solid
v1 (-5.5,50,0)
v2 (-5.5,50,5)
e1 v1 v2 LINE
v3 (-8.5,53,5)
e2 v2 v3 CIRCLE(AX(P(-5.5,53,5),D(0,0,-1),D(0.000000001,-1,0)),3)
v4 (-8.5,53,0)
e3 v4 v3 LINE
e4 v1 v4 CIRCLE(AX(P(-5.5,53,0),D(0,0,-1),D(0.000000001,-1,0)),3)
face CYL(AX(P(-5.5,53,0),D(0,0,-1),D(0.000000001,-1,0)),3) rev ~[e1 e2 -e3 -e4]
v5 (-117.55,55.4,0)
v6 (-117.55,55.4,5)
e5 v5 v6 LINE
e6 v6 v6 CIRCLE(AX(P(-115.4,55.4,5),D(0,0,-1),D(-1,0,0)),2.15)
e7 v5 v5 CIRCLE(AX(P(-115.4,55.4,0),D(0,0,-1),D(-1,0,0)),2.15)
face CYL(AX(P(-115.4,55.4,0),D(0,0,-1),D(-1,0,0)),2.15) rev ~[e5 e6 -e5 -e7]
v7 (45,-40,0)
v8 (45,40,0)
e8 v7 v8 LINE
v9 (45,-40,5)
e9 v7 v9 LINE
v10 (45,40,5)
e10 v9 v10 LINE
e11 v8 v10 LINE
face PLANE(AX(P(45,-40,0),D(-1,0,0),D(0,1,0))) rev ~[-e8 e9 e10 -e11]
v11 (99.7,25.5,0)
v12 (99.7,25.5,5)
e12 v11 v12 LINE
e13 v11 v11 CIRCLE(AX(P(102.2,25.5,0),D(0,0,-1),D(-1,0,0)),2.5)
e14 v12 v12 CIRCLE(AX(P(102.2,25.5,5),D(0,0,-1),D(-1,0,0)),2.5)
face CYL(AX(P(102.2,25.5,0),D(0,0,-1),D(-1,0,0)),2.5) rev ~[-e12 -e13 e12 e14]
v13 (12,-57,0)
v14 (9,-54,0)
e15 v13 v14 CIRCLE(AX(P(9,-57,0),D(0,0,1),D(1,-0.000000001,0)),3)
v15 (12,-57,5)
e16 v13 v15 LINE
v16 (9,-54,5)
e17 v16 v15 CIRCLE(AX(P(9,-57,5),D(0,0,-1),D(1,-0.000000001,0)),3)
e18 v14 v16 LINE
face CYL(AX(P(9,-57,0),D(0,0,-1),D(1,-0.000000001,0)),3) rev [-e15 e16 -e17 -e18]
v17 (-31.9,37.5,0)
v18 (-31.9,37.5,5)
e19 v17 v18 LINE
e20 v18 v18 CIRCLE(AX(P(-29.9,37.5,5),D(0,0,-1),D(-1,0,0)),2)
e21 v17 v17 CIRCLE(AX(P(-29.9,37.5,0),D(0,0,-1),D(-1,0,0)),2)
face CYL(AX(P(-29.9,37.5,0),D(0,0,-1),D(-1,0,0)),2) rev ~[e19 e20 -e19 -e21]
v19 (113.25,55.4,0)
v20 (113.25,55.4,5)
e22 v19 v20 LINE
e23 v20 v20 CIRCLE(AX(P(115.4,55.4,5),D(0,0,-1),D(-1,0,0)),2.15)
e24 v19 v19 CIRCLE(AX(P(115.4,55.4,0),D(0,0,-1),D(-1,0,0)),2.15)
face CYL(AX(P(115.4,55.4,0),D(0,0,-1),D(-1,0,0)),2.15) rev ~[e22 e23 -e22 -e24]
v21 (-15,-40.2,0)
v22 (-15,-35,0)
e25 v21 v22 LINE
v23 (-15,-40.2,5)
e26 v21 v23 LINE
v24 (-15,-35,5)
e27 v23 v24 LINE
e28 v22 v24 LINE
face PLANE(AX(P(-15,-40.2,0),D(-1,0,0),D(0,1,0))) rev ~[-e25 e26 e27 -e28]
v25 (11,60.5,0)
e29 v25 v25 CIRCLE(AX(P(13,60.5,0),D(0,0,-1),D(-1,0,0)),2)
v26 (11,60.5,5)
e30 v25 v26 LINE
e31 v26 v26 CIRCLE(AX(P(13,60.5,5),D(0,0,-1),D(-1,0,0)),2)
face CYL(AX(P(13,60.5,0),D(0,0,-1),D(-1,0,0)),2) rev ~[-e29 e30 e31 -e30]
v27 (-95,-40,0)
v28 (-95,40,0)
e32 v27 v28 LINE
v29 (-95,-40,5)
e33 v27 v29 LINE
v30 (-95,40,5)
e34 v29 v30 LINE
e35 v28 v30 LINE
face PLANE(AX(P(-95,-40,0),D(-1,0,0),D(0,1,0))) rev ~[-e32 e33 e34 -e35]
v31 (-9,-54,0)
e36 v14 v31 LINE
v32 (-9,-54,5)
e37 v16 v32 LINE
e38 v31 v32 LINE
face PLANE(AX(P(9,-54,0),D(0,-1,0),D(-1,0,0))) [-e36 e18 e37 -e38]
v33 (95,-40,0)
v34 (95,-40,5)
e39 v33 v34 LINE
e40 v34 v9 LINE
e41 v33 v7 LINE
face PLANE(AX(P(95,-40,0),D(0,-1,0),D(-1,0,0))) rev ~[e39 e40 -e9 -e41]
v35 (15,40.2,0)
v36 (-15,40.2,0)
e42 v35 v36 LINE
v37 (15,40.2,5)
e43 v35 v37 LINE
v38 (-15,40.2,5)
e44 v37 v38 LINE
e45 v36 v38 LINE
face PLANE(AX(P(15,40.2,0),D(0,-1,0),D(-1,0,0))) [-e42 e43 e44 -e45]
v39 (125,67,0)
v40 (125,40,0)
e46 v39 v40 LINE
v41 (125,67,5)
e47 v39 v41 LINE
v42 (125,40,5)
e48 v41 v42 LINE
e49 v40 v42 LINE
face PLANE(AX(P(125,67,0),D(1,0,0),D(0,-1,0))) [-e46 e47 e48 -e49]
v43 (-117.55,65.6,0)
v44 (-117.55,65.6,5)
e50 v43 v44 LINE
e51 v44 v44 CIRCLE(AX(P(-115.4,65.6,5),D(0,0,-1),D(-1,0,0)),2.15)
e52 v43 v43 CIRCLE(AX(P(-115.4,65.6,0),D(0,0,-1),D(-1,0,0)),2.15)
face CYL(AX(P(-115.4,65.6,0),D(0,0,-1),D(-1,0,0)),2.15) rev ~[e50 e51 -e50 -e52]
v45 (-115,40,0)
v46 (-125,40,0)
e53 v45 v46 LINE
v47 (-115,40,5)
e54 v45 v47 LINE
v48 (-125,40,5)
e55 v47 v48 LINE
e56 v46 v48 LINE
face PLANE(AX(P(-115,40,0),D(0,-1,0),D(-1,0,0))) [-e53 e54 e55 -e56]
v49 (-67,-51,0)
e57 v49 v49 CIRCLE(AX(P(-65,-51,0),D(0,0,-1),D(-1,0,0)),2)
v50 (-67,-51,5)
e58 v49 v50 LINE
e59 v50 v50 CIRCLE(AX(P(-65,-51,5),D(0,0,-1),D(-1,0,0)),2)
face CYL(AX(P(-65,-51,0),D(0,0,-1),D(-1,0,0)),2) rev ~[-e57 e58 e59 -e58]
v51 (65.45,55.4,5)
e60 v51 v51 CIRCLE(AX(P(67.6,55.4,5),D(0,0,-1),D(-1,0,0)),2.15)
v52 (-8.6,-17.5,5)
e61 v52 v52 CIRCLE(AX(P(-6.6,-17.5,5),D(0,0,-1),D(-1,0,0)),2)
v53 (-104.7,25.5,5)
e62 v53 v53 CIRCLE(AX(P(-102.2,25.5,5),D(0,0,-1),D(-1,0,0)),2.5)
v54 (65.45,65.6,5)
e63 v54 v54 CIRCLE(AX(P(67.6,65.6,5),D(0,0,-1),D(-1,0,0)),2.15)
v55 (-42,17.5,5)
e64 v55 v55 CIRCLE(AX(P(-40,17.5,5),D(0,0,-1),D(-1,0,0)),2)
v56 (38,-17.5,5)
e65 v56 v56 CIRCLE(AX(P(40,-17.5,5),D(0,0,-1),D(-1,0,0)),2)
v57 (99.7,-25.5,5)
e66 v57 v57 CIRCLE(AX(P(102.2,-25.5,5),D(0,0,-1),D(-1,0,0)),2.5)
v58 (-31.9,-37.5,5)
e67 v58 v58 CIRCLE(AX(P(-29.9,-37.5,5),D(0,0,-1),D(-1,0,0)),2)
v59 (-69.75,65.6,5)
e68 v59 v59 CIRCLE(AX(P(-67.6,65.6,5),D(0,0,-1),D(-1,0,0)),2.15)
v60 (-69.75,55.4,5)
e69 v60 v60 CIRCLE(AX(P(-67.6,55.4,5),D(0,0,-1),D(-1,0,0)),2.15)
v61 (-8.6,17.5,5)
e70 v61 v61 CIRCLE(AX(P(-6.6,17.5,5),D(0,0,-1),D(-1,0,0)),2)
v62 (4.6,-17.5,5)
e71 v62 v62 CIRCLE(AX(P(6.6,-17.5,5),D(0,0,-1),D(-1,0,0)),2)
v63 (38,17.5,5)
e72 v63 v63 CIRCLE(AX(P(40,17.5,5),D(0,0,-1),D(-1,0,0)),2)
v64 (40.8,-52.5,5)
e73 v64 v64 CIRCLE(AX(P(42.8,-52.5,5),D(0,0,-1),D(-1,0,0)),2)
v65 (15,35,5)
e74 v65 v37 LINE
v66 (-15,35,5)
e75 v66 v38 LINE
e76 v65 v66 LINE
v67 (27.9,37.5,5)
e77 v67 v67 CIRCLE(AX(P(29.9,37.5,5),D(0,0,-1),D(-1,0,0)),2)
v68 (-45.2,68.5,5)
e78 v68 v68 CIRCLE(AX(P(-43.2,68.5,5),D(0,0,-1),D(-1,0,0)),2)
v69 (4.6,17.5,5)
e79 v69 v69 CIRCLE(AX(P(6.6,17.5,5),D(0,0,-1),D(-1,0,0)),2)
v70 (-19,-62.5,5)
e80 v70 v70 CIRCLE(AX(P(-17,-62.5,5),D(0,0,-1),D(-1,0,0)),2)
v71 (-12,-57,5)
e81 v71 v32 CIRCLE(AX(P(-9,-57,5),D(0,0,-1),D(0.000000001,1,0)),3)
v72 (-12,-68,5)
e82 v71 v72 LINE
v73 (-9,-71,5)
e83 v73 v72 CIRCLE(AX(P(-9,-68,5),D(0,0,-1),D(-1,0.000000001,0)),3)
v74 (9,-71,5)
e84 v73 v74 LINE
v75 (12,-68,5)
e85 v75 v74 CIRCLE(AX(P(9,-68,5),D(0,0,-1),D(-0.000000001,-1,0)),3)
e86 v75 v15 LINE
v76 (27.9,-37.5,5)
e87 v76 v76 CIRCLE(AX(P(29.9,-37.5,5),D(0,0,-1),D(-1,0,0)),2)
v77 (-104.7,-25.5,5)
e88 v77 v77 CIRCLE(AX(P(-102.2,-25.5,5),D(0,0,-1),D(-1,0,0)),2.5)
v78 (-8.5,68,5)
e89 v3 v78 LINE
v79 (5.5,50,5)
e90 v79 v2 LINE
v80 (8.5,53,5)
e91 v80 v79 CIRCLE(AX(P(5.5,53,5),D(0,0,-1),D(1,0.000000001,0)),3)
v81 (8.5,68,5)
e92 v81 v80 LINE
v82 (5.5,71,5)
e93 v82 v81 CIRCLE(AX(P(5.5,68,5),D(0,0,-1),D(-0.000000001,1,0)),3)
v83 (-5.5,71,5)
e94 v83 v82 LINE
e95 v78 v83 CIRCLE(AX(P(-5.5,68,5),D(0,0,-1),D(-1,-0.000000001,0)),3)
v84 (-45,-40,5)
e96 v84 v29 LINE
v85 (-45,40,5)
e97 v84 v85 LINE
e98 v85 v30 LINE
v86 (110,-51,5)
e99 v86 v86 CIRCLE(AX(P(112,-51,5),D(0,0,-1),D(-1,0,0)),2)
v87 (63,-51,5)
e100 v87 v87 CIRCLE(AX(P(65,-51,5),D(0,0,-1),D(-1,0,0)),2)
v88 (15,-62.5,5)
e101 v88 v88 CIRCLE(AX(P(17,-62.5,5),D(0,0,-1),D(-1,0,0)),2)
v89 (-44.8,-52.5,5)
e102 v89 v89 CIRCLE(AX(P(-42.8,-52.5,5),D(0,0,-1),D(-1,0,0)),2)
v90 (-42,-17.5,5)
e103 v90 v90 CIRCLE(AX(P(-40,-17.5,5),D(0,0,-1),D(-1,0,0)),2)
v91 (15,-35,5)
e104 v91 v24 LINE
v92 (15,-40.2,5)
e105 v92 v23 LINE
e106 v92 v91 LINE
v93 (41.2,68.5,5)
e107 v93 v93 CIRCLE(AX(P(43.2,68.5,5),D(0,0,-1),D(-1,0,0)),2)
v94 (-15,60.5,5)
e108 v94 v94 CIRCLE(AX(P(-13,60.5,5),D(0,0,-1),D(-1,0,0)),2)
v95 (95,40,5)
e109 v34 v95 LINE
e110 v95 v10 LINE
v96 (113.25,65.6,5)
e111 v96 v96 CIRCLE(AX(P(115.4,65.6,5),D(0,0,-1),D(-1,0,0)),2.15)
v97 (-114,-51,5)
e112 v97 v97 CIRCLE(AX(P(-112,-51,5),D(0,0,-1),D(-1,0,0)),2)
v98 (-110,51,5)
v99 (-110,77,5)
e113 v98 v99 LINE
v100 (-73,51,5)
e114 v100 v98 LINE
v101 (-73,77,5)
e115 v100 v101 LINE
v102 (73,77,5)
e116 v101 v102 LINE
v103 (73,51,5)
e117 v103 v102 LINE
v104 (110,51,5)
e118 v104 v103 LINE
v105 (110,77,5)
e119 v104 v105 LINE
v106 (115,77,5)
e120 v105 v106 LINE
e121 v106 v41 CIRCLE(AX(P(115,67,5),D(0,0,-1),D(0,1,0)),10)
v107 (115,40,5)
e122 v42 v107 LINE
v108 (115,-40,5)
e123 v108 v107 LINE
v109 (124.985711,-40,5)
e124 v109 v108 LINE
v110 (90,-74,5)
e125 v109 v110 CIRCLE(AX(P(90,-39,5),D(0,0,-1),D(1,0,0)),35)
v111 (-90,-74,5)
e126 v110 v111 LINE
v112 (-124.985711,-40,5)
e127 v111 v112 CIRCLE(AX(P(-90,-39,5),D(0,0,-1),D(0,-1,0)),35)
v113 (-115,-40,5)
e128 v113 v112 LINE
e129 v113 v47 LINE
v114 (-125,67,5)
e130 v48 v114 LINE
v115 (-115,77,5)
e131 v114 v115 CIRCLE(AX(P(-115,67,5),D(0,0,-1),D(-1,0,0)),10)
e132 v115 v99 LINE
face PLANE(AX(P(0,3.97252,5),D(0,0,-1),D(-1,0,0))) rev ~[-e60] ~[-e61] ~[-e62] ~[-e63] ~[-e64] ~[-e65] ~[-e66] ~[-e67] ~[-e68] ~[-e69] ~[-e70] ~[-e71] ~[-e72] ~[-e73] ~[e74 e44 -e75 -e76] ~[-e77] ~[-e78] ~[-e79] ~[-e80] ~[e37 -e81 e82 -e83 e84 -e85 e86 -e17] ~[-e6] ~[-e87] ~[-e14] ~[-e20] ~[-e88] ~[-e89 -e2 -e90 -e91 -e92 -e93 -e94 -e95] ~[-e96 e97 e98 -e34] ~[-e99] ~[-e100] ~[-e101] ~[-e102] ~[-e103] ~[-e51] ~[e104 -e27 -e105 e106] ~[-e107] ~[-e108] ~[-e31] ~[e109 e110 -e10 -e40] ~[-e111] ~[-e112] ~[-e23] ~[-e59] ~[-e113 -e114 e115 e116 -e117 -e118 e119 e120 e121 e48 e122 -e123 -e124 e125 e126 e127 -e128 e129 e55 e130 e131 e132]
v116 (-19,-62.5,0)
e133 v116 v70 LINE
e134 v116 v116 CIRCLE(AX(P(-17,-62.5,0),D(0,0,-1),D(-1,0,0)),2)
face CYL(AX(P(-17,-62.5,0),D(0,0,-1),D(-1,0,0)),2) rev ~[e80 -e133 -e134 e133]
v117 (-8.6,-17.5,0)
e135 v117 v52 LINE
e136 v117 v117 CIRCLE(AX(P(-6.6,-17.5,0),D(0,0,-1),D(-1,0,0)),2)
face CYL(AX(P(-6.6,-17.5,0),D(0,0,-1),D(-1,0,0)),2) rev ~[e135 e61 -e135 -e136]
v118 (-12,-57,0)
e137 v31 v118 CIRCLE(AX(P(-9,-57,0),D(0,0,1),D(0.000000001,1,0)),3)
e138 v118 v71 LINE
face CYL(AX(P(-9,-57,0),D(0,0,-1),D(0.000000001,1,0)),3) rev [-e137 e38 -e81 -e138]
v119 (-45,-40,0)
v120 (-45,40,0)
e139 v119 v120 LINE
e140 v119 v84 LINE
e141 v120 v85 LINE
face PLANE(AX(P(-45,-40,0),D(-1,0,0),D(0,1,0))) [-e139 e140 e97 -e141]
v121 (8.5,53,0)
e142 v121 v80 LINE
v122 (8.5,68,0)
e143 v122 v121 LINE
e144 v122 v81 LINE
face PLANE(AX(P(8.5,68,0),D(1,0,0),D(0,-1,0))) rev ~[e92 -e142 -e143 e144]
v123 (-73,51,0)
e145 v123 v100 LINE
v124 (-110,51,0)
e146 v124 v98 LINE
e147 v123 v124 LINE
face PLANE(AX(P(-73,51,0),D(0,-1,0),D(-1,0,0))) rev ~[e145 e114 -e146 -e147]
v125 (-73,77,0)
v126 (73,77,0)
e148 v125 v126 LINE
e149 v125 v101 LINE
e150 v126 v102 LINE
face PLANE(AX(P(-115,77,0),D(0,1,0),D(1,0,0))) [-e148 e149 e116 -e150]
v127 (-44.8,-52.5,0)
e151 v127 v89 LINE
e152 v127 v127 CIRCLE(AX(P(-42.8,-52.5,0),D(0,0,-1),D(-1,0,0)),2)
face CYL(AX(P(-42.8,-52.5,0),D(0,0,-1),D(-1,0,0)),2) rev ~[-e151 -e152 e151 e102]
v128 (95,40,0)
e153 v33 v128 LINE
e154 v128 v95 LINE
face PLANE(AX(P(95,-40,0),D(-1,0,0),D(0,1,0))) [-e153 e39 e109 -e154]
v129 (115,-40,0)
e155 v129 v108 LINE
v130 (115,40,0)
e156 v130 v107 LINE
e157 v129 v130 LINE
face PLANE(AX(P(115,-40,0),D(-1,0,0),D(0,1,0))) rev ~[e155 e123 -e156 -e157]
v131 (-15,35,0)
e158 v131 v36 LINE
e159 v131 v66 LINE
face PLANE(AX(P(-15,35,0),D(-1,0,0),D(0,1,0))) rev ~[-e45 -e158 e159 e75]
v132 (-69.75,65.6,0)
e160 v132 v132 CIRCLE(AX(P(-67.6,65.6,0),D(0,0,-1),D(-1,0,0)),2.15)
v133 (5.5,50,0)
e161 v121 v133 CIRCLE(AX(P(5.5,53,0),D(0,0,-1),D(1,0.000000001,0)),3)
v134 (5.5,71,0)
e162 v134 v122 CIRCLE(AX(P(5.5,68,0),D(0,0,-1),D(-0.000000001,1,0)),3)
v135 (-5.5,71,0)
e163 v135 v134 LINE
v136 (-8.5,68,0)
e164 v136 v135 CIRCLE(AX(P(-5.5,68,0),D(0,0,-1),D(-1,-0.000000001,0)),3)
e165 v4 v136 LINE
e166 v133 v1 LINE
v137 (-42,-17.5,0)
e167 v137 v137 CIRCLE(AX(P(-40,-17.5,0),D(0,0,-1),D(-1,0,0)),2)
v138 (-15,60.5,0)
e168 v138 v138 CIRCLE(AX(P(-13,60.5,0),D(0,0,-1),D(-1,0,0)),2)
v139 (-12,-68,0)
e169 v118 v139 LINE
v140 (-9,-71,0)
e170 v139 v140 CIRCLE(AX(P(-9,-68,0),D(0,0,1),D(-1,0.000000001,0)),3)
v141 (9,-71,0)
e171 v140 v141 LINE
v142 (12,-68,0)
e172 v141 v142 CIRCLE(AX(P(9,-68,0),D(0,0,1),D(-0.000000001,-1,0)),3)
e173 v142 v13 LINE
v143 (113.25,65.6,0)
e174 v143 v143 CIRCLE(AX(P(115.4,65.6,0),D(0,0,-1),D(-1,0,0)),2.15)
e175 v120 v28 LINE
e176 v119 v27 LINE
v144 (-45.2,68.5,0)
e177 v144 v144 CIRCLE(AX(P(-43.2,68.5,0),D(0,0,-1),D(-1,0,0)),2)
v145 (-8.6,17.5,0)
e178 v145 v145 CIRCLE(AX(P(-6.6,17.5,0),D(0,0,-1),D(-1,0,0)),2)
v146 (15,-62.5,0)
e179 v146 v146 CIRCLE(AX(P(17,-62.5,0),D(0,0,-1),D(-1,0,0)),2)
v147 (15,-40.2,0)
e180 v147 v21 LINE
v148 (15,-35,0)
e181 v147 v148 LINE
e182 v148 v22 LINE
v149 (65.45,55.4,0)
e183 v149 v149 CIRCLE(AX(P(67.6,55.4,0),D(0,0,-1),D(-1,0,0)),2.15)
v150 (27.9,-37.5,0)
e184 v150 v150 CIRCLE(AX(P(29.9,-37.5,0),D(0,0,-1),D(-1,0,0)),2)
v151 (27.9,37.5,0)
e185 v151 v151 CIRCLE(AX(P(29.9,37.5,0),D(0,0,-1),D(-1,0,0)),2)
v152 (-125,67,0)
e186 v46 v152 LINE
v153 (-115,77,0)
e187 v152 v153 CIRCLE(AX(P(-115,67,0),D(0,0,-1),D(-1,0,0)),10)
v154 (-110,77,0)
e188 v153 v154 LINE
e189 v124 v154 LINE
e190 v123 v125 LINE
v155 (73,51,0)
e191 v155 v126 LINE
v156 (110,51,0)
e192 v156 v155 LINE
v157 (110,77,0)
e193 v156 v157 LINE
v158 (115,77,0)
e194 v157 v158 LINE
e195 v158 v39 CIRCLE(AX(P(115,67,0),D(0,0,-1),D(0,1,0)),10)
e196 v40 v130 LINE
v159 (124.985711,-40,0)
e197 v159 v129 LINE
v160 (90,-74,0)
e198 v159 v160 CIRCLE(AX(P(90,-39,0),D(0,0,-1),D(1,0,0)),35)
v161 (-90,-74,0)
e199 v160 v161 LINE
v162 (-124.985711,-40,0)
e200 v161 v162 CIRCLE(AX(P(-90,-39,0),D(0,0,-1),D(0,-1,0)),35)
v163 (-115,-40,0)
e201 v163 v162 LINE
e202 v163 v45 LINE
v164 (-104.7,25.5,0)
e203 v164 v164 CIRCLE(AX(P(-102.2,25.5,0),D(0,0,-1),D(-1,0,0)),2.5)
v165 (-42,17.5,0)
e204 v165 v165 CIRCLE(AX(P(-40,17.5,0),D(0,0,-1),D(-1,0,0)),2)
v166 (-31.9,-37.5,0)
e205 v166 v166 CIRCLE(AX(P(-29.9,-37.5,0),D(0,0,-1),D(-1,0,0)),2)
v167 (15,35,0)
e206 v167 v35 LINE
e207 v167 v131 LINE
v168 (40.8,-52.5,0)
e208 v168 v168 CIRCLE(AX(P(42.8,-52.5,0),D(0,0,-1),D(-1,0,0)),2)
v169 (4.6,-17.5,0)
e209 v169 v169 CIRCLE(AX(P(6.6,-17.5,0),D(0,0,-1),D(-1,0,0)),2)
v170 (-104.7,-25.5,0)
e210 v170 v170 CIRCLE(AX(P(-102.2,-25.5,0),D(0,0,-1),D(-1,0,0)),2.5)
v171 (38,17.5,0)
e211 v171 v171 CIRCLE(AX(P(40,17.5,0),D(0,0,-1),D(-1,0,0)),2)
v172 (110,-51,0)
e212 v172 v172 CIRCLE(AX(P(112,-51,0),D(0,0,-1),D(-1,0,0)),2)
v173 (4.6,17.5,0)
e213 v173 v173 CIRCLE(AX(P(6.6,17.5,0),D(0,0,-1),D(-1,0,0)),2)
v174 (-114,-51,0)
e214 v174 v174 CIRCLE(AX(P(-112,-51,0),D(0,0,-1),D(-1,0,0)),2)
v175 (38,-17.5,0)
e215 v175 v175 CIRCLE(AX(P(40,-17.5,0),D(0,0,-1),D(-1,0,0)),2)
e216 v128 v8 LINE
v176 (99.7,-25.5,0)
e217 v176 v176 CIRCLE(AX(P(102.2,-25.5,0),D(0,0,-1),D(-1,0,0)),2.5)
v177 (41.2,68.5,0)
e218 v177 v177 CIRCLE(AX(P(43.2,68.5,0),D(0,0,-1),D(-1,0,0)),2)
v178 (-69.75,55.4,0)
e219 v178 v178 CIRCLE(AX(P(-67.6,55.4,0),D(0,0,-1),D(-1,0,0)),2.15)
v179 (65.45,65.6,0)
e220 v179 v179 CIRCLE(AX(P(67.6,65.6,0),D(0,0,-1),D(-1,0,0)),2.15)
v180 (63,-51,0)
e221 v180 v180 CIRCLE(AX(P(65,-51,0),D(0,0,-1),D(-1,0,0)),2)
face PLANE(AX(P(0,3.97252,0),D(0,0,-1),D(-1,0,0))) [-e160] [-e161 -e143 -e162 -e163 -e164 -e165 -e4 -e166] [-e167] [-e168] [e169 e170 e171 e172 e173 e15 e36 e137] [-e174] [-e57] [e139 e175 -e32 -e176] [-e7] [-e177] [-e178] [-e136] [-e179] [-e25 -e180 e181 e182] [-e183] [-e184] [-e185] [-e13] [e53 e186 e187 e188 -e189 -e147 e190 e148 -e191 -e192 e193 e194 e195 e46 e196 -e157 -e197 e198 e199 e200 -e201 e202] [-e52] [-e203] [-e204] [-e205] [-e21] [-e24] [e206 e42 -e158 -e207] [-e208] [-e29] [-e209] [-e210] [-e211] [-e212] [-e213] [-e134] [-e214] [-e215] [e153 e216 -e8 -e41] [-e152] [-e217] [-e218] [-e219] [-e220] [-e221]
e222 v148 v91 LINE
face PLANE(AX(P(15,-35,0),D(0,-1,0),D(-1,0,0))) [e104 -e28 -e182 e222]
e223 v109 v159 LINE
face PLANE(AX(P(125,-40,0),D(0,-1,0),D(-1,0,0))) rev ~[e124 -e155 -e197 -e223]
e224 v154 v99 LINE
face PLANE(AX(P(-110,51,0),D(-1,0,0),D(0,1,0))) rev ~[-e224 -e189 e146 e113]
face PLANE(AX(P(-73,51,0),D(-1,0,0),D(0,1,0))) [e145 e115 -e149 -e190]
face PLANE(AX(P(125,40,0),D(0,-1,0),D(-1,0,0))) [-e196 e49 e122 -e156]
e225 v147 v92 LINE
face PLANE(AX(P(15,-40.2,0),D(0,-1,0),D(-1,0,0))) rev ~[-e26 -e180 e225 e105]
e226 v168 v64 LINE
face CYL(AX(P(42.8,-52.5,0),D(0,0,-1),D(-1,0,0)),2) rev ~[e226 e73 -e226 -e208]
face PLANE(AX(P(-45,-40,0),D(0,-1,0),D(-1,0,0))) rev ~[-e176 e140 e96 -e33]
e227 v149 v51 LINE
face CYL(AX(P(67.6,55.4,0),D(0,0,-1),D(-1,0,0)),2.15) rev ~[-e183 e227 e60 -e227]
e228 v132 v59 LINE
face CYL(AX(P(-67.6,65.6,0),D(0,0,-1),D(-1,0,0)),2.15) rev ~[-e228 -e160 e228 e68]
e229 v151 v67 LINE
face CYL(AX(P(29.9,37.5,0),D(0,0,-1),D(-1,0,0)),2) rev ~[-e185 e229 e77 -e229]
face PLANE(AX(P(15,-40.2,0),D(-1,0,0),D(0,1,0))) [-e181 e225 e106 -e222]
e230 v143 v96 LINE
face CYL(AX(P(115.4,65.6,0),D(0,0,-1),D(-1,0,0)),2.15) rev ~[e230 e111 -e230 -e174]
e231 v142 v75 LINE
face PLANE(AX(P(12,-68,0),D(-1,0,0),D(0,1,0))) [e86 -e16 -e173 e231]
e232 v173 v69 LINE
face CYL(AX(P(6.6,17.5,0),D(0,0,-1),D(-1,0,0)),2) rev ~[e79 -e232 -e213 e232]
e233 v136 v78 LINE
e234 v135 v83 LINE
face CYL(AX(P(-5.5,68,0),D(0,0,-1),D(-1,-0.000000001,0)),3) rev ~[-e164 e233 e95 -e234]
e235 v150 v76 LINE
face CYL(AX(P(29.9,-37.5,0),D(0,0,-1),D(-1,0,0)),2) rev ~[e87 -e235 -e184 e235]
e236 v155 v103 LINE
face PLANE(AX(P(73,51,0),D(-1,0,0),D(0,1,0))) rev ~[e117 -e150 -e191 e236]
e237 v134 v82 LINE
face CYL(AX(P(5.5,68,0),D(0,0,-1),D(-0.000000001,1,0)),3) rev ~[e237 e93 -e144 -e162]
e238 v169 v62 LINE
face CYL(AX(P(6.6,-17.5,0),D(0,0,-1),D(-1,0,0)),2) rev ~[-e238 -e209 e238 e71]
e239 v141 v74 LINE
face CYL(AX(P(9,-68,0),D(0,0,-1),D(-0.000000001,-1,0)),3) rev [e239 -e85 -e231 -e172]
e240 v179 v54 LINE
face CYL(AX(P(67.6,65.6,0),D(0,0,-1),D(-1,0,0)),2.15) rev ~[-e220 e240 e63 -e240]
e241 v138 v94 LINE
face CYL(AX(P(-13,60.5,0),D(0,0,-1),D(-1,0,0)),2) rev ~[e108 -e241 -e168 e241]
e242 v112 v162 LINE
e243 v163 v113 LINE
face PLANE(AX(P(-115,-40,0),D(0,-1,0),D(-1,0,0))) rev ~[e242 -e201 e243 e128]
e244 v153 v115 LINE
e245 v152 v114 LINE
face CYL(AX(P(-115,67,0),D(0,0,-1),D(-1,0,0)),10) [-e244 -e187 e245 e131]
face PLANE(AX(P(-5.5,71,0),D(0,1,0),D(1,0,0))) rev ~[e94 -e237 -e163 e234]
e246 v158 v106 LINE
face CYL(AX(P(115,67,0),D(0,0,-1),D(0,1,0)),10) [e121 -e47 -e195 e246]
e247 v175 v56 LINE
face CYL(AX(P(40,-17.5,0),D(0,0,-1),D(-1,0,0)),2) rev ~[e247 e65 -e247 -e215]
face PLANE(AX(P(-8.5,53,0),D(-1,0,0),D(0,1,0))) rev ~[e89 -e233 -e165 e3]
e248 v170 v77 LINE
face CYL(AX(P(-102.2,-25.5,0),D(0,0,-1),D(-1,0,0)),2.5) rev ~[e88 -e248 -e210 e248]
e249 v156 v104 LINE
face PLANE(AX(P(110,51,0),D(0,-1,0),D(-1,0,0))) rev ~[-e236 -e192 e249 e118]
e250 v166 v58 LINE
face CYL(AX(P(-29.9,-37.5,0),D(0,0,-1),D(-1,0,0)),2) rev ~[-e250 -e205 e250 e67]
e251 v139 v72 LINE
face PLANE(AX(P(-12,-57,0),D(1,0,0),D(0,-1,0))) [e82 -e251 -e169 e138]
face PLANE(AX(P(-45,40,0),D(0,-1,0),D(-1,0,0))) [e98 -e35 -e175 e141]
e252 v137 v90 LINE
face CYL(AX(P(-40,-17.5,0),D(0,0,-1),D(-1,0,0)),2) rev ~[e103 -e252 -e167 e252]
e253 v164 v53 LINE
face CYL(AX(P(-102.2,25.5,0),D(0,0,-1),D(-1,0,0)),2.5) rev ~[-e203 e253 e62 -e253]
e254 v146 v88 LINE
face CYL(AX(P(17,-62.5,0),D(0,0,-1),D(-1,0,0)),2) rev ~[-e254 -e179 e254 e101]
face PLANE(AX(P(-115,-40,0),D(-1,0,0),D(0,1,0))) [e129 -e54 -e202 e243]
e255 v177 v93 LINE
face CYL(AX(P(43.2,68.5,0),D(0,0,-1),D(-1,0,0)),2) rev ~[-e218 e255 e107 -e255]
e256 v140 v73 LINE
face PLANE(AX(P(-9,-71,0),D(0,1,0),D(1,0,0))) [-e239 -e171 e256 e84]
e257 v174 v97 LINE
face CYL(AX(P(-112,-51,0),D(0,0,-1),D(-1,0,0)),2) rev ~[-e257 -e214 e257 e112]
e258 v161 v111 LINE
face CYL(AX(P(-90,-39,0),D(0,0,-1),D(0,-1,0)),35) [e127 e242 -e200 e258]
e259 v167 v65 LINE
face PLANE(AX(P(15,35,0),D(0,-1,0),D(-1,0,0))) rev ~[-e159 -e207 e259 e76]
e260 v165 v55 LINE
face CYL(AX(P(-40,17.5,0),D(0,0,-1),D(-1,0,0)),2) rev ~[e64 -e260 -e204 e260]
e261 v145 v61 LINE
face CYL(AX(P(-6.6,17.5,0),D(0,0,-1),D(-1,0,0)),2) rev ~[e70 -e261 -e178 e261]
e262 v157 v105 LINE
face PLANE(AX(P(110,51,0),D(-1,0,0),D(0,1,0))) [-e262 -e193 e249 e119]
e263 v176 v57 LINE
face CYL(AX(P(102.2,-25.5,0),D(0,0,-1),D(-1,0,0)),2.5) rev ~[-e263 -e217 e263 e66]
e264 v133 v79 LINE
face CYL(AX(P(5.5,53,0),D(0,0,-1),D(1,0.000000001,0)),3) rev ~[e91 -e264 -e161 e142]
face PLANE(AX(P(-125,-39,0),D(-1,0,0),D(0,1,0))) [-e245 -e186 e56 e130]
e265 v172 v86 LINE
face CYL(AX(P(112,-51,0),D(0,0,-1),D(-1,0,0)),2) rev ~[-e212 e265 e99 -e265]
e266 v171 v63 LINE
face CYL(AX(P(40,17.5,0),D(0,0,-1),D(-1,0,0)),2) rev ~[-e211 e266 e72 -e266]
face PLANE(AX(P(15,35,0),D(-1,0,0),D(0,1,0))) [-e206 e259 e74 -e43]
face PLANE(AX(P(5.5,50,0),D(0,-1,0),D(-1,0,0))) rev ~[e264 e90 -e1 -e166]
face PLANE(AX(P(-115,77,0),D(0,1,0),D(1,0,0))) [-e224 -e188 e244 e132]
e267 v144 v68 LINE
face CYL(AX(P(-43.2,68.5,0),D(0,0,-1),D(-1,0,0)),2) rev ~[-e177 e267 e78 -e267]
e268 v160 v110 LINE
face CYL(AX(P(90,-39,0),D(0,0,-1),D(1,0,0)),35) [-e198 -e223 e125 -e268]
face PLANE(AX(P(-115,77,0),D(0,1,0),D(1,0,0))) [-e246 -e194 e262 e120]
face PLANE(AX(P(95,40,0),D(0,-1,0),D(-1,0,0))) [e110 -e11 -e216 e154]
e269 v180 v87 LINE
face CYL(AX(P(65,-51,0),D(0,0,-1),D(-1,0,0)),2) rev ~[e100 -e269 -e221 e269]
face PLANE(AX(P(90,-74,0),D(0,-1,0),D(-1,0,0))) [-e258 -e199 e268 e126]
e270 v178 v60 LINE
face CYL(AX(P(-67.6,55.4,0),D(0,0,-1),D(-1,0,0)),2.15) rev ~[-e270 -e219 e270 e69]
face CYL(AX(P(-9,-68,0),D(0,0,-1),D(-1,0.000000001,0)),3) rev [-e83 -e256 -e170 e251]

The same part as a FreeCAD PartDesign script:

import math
import FreeCAD as App
import Part
import Sketcher

V = App.Vector


def add_polygon(sketch, points):
    """Adds a closed chain of lines whose ends are joined by coincident constraints."""
    first, n = sketch.GeometryCount, len(points)
    for a, b in zip(points, points[1:] + points[:1]):
        sketch.addGeometry(Part.LineSegment(App.Vector(*a, 0), App.Vector(*b, 0)), False)
    for i in range(n):
        sketch.addConstraint(Sketcher.Constraint("Coincident", first + i, 2, first + (i + 1) % n, 1))

doc = App.newDocument("Part")
body = doc.addObject("PartDesign::Body", "Body")

# Sketch on XY plane
sketch1 = doc.addObject("Sketcher::SketchObject", "Sketch")
body.addObject(sketch1)
sketch1.AttachmentSupport = (doc.XY_Plane, [""])
sketch1.MapMode = "FlatFace"
sketch1.addGeometry(Part.LineSegment(V(115, 77, 0), V(-115, 77, 0)), False)
sketch1.addGeometry(Part.ArcOfCircle(Part.Circle(V(-115, 67, 0), V(0, 0, 1), 10), math.radians(90), math.radians(180)), False)
sketch1.addGeometry(Part.LineSegment(V(-125, 67, 0), V(-125, -39, 0)), False)
sketch1.addGeometry(Part.ArcOfCircle(Part.Circle(V(-90, -39, 0), V(0, 0, 1), 35), math.radians(180), math.radians(270)), False)
sketch1.addGeometry(Part.LineSegment(V(-90, -74, 0), V(90, -74, 0)), False)
sketch1.addGeometry(Part.ArcOfCircle(Part.Circle(V(90, -39, 0), V(0, 0, 1), 35), math.radians(-90), math.radians(0)), False)
sketch1.addGeometry(Part.LineSegment(V(125, -39, 0), V(125, 67, 0)), False)
sketch1.addGeometry(Part.ArcOfCircle(Part.Circle(V(115, 67, 0), V(0, 0, 1), 10), math.radians(0), math.radians(90)), False)
sketch1.addConstraint(Sketcher.Constraint("Tangent", 0, 2, 1, 1))
sketch1.addConstraint(Sketcher.Constraint("Tangent", 1, 2, 2, 1))
sketch1.addConstraint(Sketcher.Constraint("Tangent", 2, 2, 3, 1))
sketch1.addConstraint(Sketcher.Constraint("Tangent", 3, 2, 4, 1))
sketch1.addConstraint(Sketcher.Constraint("Tangent", 4, 2, 5, 1))
sketch1.addConstraint(Sketcher.Constraint("Tangent", 5, 2, 6, 1))
sketch1.addConstraint(Sketcher.Constraint("Tangent", 6, 2, 7, 1))
sketch1.addConstraint(Sketcher.Constraint("Tangent", 7, 2, 0, 1))
sketch1.addConstraint(Sketcher.Constraint("Horizontal", 0))
sketch1.addConstraint(Sketcher.Constraint("Vertical", 2))
sketch1.addConstraint(Sketcher.Constraint("Horizontal", 4))
sketch1.addConstraint(Sketcher.Constraint("Vertical", 6))
sketch1.addConstraint(Sketcher.Constraint("Equal", 3, 5))
sketch1.addConstraint(Sketcher.Constraint("Equal", 1, 7))
sketch1.addConstraint(Sketcher.Constraint("Radius", 1, 10.0))
sketch1.addConstraint(Sketcher.Constraint("Radius", 3, 35.0))
sketch1.addConstraint(Sketcher.Constraint("DistanceX", 0, 2, 0, 1, 230.0))
sketch1.addConstraint(Sketcher.Constraint("DistanceY", 2, 2, 2, 1, 106.0))
sketch1.addConstraint(Sketcher.Constraint("DistanceX", 1, 3, -1, 1, 115.0))
sketch1.addConstraint(Sketcher.Constraint("DistanceY", -1, 1, 1, 3, 67.0))
pad1 = doc.addObject("PartDesign::Pad", "Pad")
body.addObject(pad1)
pad1.Profile = sketch1
pad1.Length = 5

# Sketch on XY plane
sketch2 = doc.addObject("Sketcher::SketchObject", "Sketch001")
body.addObject(sketch2)
sketch2.AttachmentSupport = (doc.XY_Plane, [""])
sketch2.MapMode = "FlatFace"
sketch2.addGeometry(Part.Circle(V(6.6, -17.5, 0), V(0, 0, 1), 2), False)  # 0
sketch2.addGeometry(Part.Circle(V(6.6, 17.5, 0), V(0, 0, 1), 2), False)  # 1
sketch2.addGeometry(Part.Circle(V(40, -17.5, 0), V(0, 0, 1), 2), False)  # 2
sketch2.addGeometry(Part.Circle(V(40, 17.5, 0), V(0, 0, 1), 2), False)  # 3
sketch2.addGeometry(Part.Circle(V(-6.6, 17.5, 0), V(0, 0, 1), 2), False)  # 4
sketch2.addGeometry(Part.Circle(V(-6.6, -17.5, 0), V(0, 0, 1), 2), False)  # 5
sketch2.addGeometry(Part.Circle(V(-40, -17.5, 0), V(0, 0, 1), 2), False)  # 6
sketch2.addGeometry(Part.Circle(V(-40, 17.5, 0), V(0, 0, 1), 2), False)  # 7
add_polygon(sketch2, [(125, 40), (125, -40), (115, -40), (115, 40)])  # lines 8-11
add_polygon(sketch2, [(95, 40), (95, -40), (45, -40), (45, 40)])  # lines 12-15
add_polygon(sketch2, [(-115, 40), (-115, -40), (-125, -40), (-125, 40)])  # lines 16-19
add_polygon(sketch2, [(-45, 40), (-45, -40), (-95, -40), (-95, 40)])  # lines 20-23
sketch2.addConstraint(Sketcher.Constraint("Vertical", 8))
sketch2.addConstraint(Sketcher.Constraint("Horizontal", 9))
sketch2.addConstraint(Sketcher.Constraint("Vertical", 10))
sketch2.addConstraint(Sketcher.Constraint("Horizontal", 11))
sketch2.addConstraint(Sketcher.Constraint("Vertical", 12))
sketch2.addConstraint(Sketcher.Constraint("Horizontal", 13))
sketch2.addConstraint(Sketcher.Constraint("Vertical", 14))
sketch2.addConstraint(Sketcher.Constraint("Horizontal", 15))
sketch2.addConstraint(Sketcher.Constraint("Vertical", 16))
sketch2.addConstraint(Sketcher.Constraint("Horizontal", 17))
sketch2.addConstraint(Sketcher.Constraint("Vertical", 18))
sketch2.addConstraint(Sketcher.Constraint("Horizontal", 19))
sketch2.addConstraint(Sketcher.Constraint("Vertical", 20))
sketch2.addConstraint(Sketcher.Constraint("Horizontal", 21))
sketch2.addConstraint(Sketcher.Constraint("Vertical", 22))
sketch2.addConstraint(Sketcher.Constraint("Horizontal", 23))
sketch2.addConstraint(Sketcher.Constraint("Equal", 0, 1))
sketch2.addConstraint(Sketcher.Constraint("Equal", 1, 2))
sketch2.addConstraint(Sketcher.Constraint("Equal", 2, 3))
sketch2.addConstraint(Sketcher.Constraint("Equal", 3, 4))
sketch2.addConstraint(Sketcher.Constraint("Equal", 4, 5))
sketch2.addConstraint(Sketcher.Constraint("Equal", 5, 6))
sketch2.addConstraint(Sketcher.Constraint("Equal", 6, 7))
sketch2.addConstraint(Sketcher.Constraint("Symmetric", 0, 3, 4, 3, -1, 1))
sketch2.addConstraint(Sketcher.Constraint("Symmetric", 1, 3, 5, 3, -1, 1))
sketch2.addConstraint(Sketcher.Constraint("Symmetric", 3, 3, 6, 3, -1, 1))
sketch2.addConstraint(Sketcher.Constraint("Symmetric", 2, 3, 7, 3, -1, 1))
sketch2.addConstraint(Sketcher.Constraint("Symmetric", 10, 2, 16, 2, -1, 1))
sketch2.addConstraint(Sketcher.Constraint("Symmetric", 8, 2, 18, 2, -1, 1))
sketch2.addConstraint(Sketcher.Constraint("Symmetric", 14, 2, 20, 2, -1, 1))
sketch2.addConstraint(Sketcher.Constraint("Symmetric", 12, 2, 22, 2, -1, 1))
sketch2.addConstraint(Sketcher.Constraint("Symmetric", 1, 3, 4, 3, -2))
sketch2.addConstraint(Sketcher.Constraint("Symmetric", 2, 3, 6, 3, -2))
sketch2.addConstraint(Sketcher.Constraint("Horizontal", 0, 3, 2, 3))
sketch2.addConstraint(Sketcher.Constraint("Horizontal", 9, 2, 12, 2))
sketch2.addConstraint(Sketcher.Constraint("Horizontal", 11, 2, 14, 2))
sketch2.addConstraint(Sketcher.Constraint("Horizontal", 13, 2, 16, 2))
sketch2.addConstraint(Sketcher.Constraint("Diameter", 0, 4.0))
sketch2.addConstraint(Sketcher.Constraint("DistanceX", 9, 2, 9, 1, 10.0))
sketch2.addConstraint(Sketcher.Constraint("DistanceX", 13, 2, 13, 1, 50.0))
sketch2.addConstraint(Sketcher.Constraint("DistanceY", 8, 2, 8, 1, 80.0))
sketch2.addConstraint(Sketcher.Constraint("DistanceX", -1, 1, 2, 3, 40.0))
sketch2.addConstraint(Sketcher.Constraint("DistanceX", -1, 1, 8, 2, 125.0))
sketch2.addConstraint(Sketcher.Constraint("DistanceX", -1, 1, 12, 2, 95.0))
sketch2.addConstraint(Sketcher.Constraint("DistanceY", 0, 3, 1, 3, 35.0))
sketch2.addConstraint(Sketcher.Constraint("DistanceX", -1, 1, 0, 3, 6.6))
pocket1 = doc.addObject("PartDesign::Pocket", "Pocket")
body.addObject(pocket1)
pocket1.Profile = sketch2
pocket1.Length = 10
pocket1.Reversed = True

# Sketch on XY plane
sketch3 = doc.addObject("Sketcher::SketchObject", "Sketch002")
body.addObject(sketch3)
sketch3.AttachmentSupport = (doc.XY_Plane, [""])
sketch3.MapMode = "FlatFace"
add_polygon(sketch3, [(15, 40), (15, 35), (-15, 35), (-15, 40)])  # lines 0-3
add_polygon(sketch3, [(15, -35), (15, -40), (-15, -40), (-15, -35)])  # lines 4-7
sketch3.addConstraint(Sketcher.Constraint("Vertical", 0))
sketch3.addConstraint(Sketcher.Constraint("Horizontal", 1))
sketch3.addConstraint(Sketcher.Constraint("Vertical", 2))
sketch3.addConstraint(Sketcher.Constraint("Horizontal", 3))
sketch3.addConstraint(Sketcher.Constraint("Vertical", 4))
sketch3.addConstraint(Sketcher.Constraint("Horizontal", 5))
sketch3.addConstraint(Sketcher.Constraint("Vertical", 6))
sketch3.addConstraint(Sketcher.Constraint("Horizontal", 7))
sketch3.addConstraint(Sketcher.Constraint("Symmetric", 2, 2, 4, 2, -1, 1))
sketch3.addConstraint(Sketcher.Constraint("Symmetric", 0, 2, 6, 2, -1, 1))
sketch3.addConstraint(Sketcher.Constraint("Vertical", 3, 2, 4, 2))
sketch3.addConstraint(Sketcher.Constraint("DistanceX", 1, 2, 1, 1, 30.0))
sketch3.addConstraint(Sketcher.Constraint("DistanceY", 0, 2, 0, 1, 5.2))
sketch3.addConstraint(Sketcher.Constraint("DistanceY", -1, 1, 0, 2, 35.0))
pocket2 = doc.addObject("PartDesign::Pocket", "Pocket001")
body.addObject(pocket2)
pocket2.Profile = sketch3
pocket2.Length = 10
pocket2.Reversed = True

# Sketch on XY plane
sketch4 = doc.addObject("Sketcher::SketchObject", "Sketch003")
body.addObject(sketch4)
sketch4.AttachmentSupport = (doc.XY_Plane, [""])
sketch4.MapMode = "FlatFace"
sketch4.addGeometry(Part.Circle(V(102.2, -25.5, 0), V(0, 0, 1), 2.5), False)
sketch4.addGeometry(Part.Circle(V(102.2, 25.5, 0), V(0, 0, 1), 2.5), False)
sketch4.addGeometry(Part.Circle(V(-102.2, -25.5, 0), V(0, 0, 1), 2.5), False)
sketch4.addGeometry(Part.Circle(V(-102.2, 25.5, 0), V(0, 0, 1), 2.5), False)
sketch4.addConstraint(Sketcher.Constraint("Equal", 0, 1))
sketch4.addConstraint(Sketcher.Constraint("Equal", 1, 2))
sketch4.addConstraint(Sketcher.Constraint("Equal", 2, 3))
sketch4.addConstraint(Sketcher.Constraint("Symmetric", 1, 3, 2, 3, -1, 1))
sketch4.addConstraint(Sketcher.Constraint("Symmetric", 0, 3, 3, 3, -1, 1))
sketch4.addConstraint(Sketcher.Constraint("Symmetric", 0, 3, 2, 3, -2))
sketch4.addConstraint(Sketcher.Constraint("Diameter", 0, 5.0))
sketch4.addConstraint(Sketcher.Constraint("DistanceY", 0, 3, 1, 3, 51.0))
sketch4.addConstraint(Sketcher.Constraint("DistanceX", -1, 1, 0, 3, 102.2))
pocket3 = doc.addObject("PartDesign::Pocket", "Pocket002")
body.addObject(pocket3)
pocket3.Profile = sketch4
pocket3.Length = 10
pocket3.Reversed = True

# Sketch on XY plane
sketch5 = doc.addObject("Sketcher::SketchObject", "Sketch004")
body.addObject(sketch5)
sketch5.AttachmentSupport = (doc.XY_Plane, [""])
sketch5.MapMode = "FlatFace"
sketch5.addGeometry(Part.Circle(V(-29.9, 37.5, 0), V(0, 0, 1), 2), False)
sketch5.addGeometry(Part.Circle(V(29.9, -37.5, 0), V(0, 0, 1), 2), False)
sketch5.addGeometry(Part.Circle(V(29.9, 37.5, 0), V(0, 0, 1), 2), False)
sketch5.addGeometry(Part.Circle(V(-29.9, -37.5, 0), V(0, 0, 1), 2), False)
sketch5.addConstraint(Sketcher.Constraint("Equal", 0, 1))
sketch5.addConstraint(Sketcher.Constraint("Equal", 1, 2))
sketch5.addConstraint(Sketcher.Constraint("Equal", 2, 3))
sketch5.addConstraint(Sketcher.Constraint("Symmetric", 0, 3, 1, 3, -1, 1))
sketch5.addConstraint(Sketcher.Constraint("Symmetric", 2, 3, 3, 3, -1, 1))
sketch5.addConstraint(Sketcher.Constraint("Symmetric", 0, 3, 2, 3, -2))
sketch5.addConstraint(Sketcher.Constraint("Diameter", 0, 4.0))
sketch5.addConstraint(Sketcher.Constraint("DistanceY", 1, 3, 0, 3, 75.0))
sketch5.addConstraint(Sketcher.Constraint("DistanceX", 0, 3, -1, 1, 29.9))
pocket4 = doc.addObject("PartDesign::Pocket", "Pocket003")
body.addObject(pocket4)
pocket4.Profile = sketch5
pocket4.Length = 10
pocket4.Reversed = True

# Sketch on XY plane
sketch6 = doc.addObject("Sketcher::SketchObject", "Sketch005")
body.addObject(sketch6)
sketch6.AttachmentSupport = (doc.XY_Plane, [""])
sketch6.MapMode = "FlatFace"
sketch6.addGeometry(Part.LineSegment(V(-5.5, 71, 0), V(5.5, 71, 0)), False)
sketch6.addGeometry(Part.ArcOfCircle(Part.Circle(V(5.5, 68, 0), V(0, 0, 1), 3), math.radians(0), math.radians(90)), False)
sketch6.addGeometry(Part.LineSegment(V(8.5, 68, 0), V(8.5, 53, 0)), False)
sketch6.addGeometry(Part.ArcOfCircle(Part.Circle(V(5.5, 53, 0), V(0, 0, 1), 3), math.radians(-90), math.radians(0)), False)
sketch6.addGeometry(Part.LineSegment(V(5.5, 50, 0), V(-5.5, 50, 0)), False)
sketch6.addGeometry(Part.ArcOfCircle(Part.Circle(V(-5.5, 53, 0), V(0, 0, 1), 3), math.radians(180), math.radians(270)), False)
sketch6.addGeometry(Part.LineSegment(V(-8.5, 53, 0), V(-8.5, 68, 0)), False)
sketch6.addGeometry(Part.ArcOfCircle(Part.Circle(V(-5.5, 68, 0), V(0, 0, 1), 3), math.radians(90), math.radians(180)), False)
sketch6.addConstraint(Sketcher.Constraint("Tangent", 0, 2, 1, 2))
sketch6.addConstraint(Sketcher.Constraint("Tangent", 1, 1, 2, 1))
sketch6.addConstraint(Sketcher.Constraint("Tangent", 2, 2, 3, 2))
sketch6.addConstraint(Sketcher.Constraint("Tangent", 3, 1, 4, 1))
sketch6.addConstraint(Sketcher.Constraint("Tangent", 4, 2, 5, 2))
sketch6.addConstraint(Sketcher.Constraint("Tangent", 5, 1, 6, 1))
sketch6.addConstraint(Sketcher.Constraint("Tangent", 6, 2, 7, 2))
sketch6.addConstraint(Sketcher.Constraint("Tangent", 7, 1, 0, 1))
sketch6.addConstraint(Sketcher.Constraint("Horizontal", 0))
sketch6.addConstraint(Sketcher.Constraint("Vertical", 2))
sketch6.addConstraint(Sketcher.Constraint("Horizontal", 4))
sketch6.addConstraint(Sketcher.Constraint("Vertical", 6))
sketch6.addConstraint(Sketcher.Constraint("Equal", 1, 3))
sketch6.addConstraint(Sketcher.Constraint("Equal", 3, 5))
sketch6.addConstraint(Sketcher.Constraint("Equal", 5, 7))
sketch6.addConstraint(Sketcher.Constraint("Radius", 1, 3.0))
sketch6.addConstraint(Sketcher.Constraint("DistanceX", 0, 1, 0, 2, 11.0))
sketch6.addConstraint(Sketcher.Constraint("DistanceY", 2, 2, 2, 1, 15.0))
sketch6.addConstraint(Sketcher.Constraint("DistanceY", -1, 1, 1, 3, 68.0))
sketch6.addConstraint(Sketcher.Constraint("DistanceX", -1, 1, 1, 3, 5.5))
pocket5 = doc.addObject("PartDesign::Pocket", "Pocket004")
body.addObject(pocket5)
pocket5.Profile = sketch6
pocket5.Length = 70
pocket5.Reversed = True

# Sketch on XY plane
sketch7 = doc.addObject("Sketcher::SketchObject", "Sketch006")
body.addObject(sketch7)
sketch7.AttachmentSupport = (doc.XY_Plane, [""])
sketch7.MapMode = "FlatFace"
sketch7.addGeometry(Part.Circle(V(-13, 60.5, 0), V(0, 0, 1), 2), False)
sketch7.addGeometry(Part.Circle(V(13, 60.5, 0), V(0, 0, 1), 2), False)
sketch7.addConstraint(Sketcher.Constraint("Equal", 0, 1))
sketch7.addConstraint(Sketcher.Constraint("Symmetric", 0, 3, 1, 3, -2))
sketch7.addConstraint(Sketcher.Constraint("Diameter", 0, 4.0))
sketch7.addConstraint(Sketcher.Constraint("DistanceX", 0, 3, -1, 1, 13.0))
sketch7.addConstraint(Sketcher.Constraint("DistanceY", -1, 1, 0, 3, 60.5))
pocket6 = doc.addObject("PartDesign::Pocket", "Pocket005")
body.addObject(pocket6)
pocket6.Profile = sketch7
pocket6.Length = 5
pocket6.Reversed = True

# Sketch on XY plane
sketch8 = doc.addObject("Sketcher::SketchObject", "Sketch007")
body.addObject(sketch8)
sketch8.AttachmentSupport = (doc.XY_Plane, [""])
sketch8.MapMode = "FlatFace"
sketch8.addGeometry(Part.Circle(V(17, -62.5, 0), V(0, 0, 1), 2), False)
sketch8.addGeometry(Part.Circle(V(-17, -62.5, 0), V(0, 0, 1), 2), False)
sketch8.addGeometry(Part.LineSegment(V(-9, -54, 0), V(9, -54, 0)), False)
sketch8.addGeometry(Part.ArcOfCircle(Part.Circle(V(9, -57, 0), V(0, 0, 1), 3), math.radians(0), math.radians(90)), False)
sketch8.addGeometry(Part.LineSegment(V(12, -57, 0), V(12, -68, 0)), False)
sketch8.addGeometry(Part.ArcOfCircle(Part.Circle(V(9, -68, 0), V(0, 0, 1), 3), math.radians(-90), math.radians(0)), False)
sketch8.addGeometry(Part.LineSegment(V(9, -71, 0), V(-9, -71, 0)), False)
sketch8.addGeometry(Part.ArcOfCircle(Part.Circle(V(-9, -68, 0), V(0, 0, 1), 3), math.radians(180), math.radians(270)), False)
sketch8.addGeometry(Part.LineSegment(V(-12, -68, 0), V(-12, -57, 0)), False)
sketch8.addGeometry(Part.ArcOfCircle(Part.Circle(V(-9, -57, 0), V(0, 0, 1), 3), math.radians(90), math.radians(180)), False)
sketch8.addConstraint(Sketcher.Constraint("Tangent", 2, 2, 3, 2))
sketch8.addConstraint(Sketcher.Constraint("Tangent", 3, 1, 4, 1))
sketch8.addConstraint(Sketcher.Constraint("Tangent", 4, 2, 5, 2))
sketch8.addConstraint(Sketcher.Constraint("Tangent", 5, 1, 6, 1))
sketch8.addConstraint(Sketcher.Constraint("Tangent", 6, 2, 7, 2))
sketch8.addConstraint(Sketcher.Constraint("Tangent", 7, 1, 8, 1))
sketch8.addConstraint(Sketcher.Constraint("Tangent", 8, 2, 9, 2))
sketch8.addConstraint(Sketcher.Constraint("Tangent", 9, 1, 2, 1))
sketch8.addConstraint(Sketcher.Constraint("Horizontal", 2))
sketch8.addConstraint(Sketcher.Constraint("Vertical", 4))
sketch8.addConstraint(Sketcher.Constraint("Horizontal", 6))
sketch8.addConstraint(Sketcher.Constraint("Vertical", 8))
sketch8.addConstraint(Sketcher.Constraint("Equal", 0, 1))
sketch8.addConstraint(Sketcher.Constraint("Equal", 3, 5))
sketch8.addConstraint(Sketcher.Constraint("Equal", 5, 7))
sketch8.addConstraint(Sketcher.Constraint("Equal", 7, 9))
sketch8.addConstraint(Sketcher.Constraint("Symmetric", 0, 3, 1, 3, -2))
sketch8.addConstraint(Sketcher.Constraint("Diameter", 0, 4.0))
sketch8.addConstraint(Sketcher.Constraint("Radius", 3, 3.0))
sketch8.addConstraint(Sketcher.Constraint("DistanceX", 2, 1, 2, 2, 18.0))
sketch8.addConstraint(Sketcher.Constraint("DistanceY", 4, 2, 4, 1, 11.0))
sketch8.addConstraint(Sketcher.Constraint("DistanceX", -1, 1, 0, 3, 17.0))
sketch8.addConstraint(Sketcher.Constraint("DistanceX", -1, 1, 3, 3, 9.0))
sketch8.addConstraint(Sketcher.Constraint("DistanceY", 3, 3, -1, 1, 57.0))
sketch8.addConstraint(Sketcher.Constraint("DistanceY", 0, 3, -1, 1, 62.5))
pocket7 = doc.addObject("PartDesign::Pocket", "Pocket006")
body.addObject(pocket7)
pocket7.Profile = sketch8
pocket7.Length = 10
pocket7.Reversed = True

# Sketch on XY plane
sketch9 = doc.addObject("Sketcher::SketchObject", "Sketch008")
body.addObject(sketch9)
sketch9.AttachmentSupport = (doc.XY_Plane, [""])
sketch9.MapMode = "FlatFace"
add_polygon(sketch9, [(110, 77), (110, 51), (73, 51), (73, 77)])  # lines 0-3
add_polygon(sketch9, [(-73, 77), (-73, 51), (-110, 51), (-110, 77)])  # lines 4-7
sketch9.addConstraint(Sketcher.Constraint("Vertical", 0))
sketch9.addConstraint(Sketcher.Constraint("Horizontal", 1))
sketch9.addConstraint(Sketcher.Constraint("Vertical", 2))
sketch9.addConstraint(Sketcher.Constraint("Horizontal", 3))
sketch9.addConstraint(Sketcher.Constraint("Vertical", 4))
sketch9.addConstraint(Sketcher.Constraint("Horizontal", 5))
sketch9.addConstraint(Sketcher.Constraint("Vertical", 6))
sketch9.addConstraint(Sketcher.Constraint("Horizontal", 7))
sketch9.addConstraint(Sketcher.Constraint("Symmetric", 1, 2, 4, 2, -2))
sketch9.addConstraint(Sketcher.Constraint("Symmetric", 3, 2, 6, 2, -2))
sketch9.addConstraint(Sketcher.Constraint("DistanceX", 1, 2, 1, 1, 37.0))
sketch9.addConstraint(Sketcher.Constraint("DistanceY", 0, 2, 0, 1, 26.0))
sketch9.addConstraint(Sketcher.Constraint("DistanceX", -1, 1, 0, 2, 110.0))
sketch9.addConstraint(Sketcher.Constraint("DistanceY", -1, 1, 0, 2, 51.0))
pocket8 = doc.addObject("PartDesign::Pocket", "Pocket007")
body.addObject(pocket8)
pocket8.Profile = sketch9
pocket8.Length = 10
pocket8.Reversed = True

# Sketch on XY plane
sketch10 = doc.addObject("Sketcher::SketchObject", "Sketch009")
body.addObject(sketch10)
sketch10.AttachmentSupport = (doc.XY_Plane, [""])
sketch10.MapMode = "FlatFace"
sketch10.addGeometry(Part.Circle(V(-67.6, 65.6, 0), V(0, 0, 1), 2.1), False)
sketch10.addGeometry(Part.Circle(V(-67.6, 55.4, 0), V(0, 0, 1), 2.1), False)
sketch10.addGeometry(Part.Circle(V(-115.4, 55.4, 0), V(0, 0, 1), 2.1), False)
sketch10.addGeometry(Part.Circle(V(-115.4, 65.6, 0), V(0, 0, 1), 2.1), False)
sketch10.addGeometry(Part.Circle(V(115.4, 65.6, 0), V(0, 0, 1), 2.1), False)
sketch10.addGeometry(Part.Circle(V(115.4, 55.4, 0), V(0, 0, 1), 2.1), False)
sketch10.addGeometry(Part.Circle(V(67.6, 55.4, 0), V(0, 0, 1), 2.1), False)
sketch10.addGeometry(Part.Circle(V(67.6, 65.6, 0), V(0, 0, 1), 2.1), False)
sketch10.addConstraint(Sketcher.Constraint("Equal", 0, 1))
sketch10.addConstraint(Sketcher.Constraint("Equal", 1, 2))
sketch10.addConstraint(Sketcher.Constraint("Equal", 2, 3))
sketch10.addConstraint(Sketcher.Constraint("Equal", 3, 4))
sketch10.addConstraint(Sketcher.Constraint("Equal", 4, 5))
sketch10.addConstraint(Sketcher.Constraint("Equal", 5, 6))
sketch10.addConstraint(Sketcher.Constraint("Equal", 6, 7))
sketch10.addConstraint(Sketcher.Constraint("Symmetric", 3, 3, 4, 3, -2))
sketch10.addConstraint(Sketcher.Constraint("Symmetric", 2, 3, 5, 3, -2))
sketch10.addConstraint(Sketcher.Constraint("Symmetric", 1, 3, 6, 3, -2))
sketch10.addConstraint(Sketcher.Constraint("Symmetric", 0, 3, 7, 3, -2))
sketch10.addConstraint(Sketcher.Constraint("Horizontal", 1, 3, 2, 3))
sketch10.addConstraint(Sketcher.Constraint("Horizontal", 0, 3, 3, 3))
sketch10.addConstraint(Sketcher.Constraint("Vertical", 0, 3, 1, 3))
sketch10.addConstraint(Sketcher.Constraint("Vertical", 2, 3, 3, 3))
sketch10.addConstraint(Sketcher.Constraint("Diameter", 0, 4.3))
sketch10.addConstraint(Sketcher.Constraint("DistanceX", 0, 3, 4, 3, 183.0))
sketch10.addConstraint(Sketcher.Constraint("DistanceX", 0, 3, -1, 1, 67.6))
sketch10.addConstraint(Sketcher.Constraint("DistanceY", -1, 1, 0, 3, 65.6))
sketch10.addConstraint(Sketcher.Constraint("DistanceY", -1, 1, 1, 3, 55.4))
pocket9 = doc.addObject("PartDesign::Pocket", "Pocket008")
body.addObject(pocket9)
pocket9.Profile = sketch10
pocket9.Length = 10
pocket9.Reversed = True

# Sketch on XY plane
sketch11 = doc.addObject("Sketcher::SketchObject", "Sketch010")
body.addObject(sketch11)
sketch11.AttachmentSupport = (doc.XY_Plane, [""])
sketch11.MapMode = "FlatFace"
sketch11.addGeometry(Part.Circle(V(43.2, 68.5, 0), V(0, 0, 1), 2), False)
sketch11.addGeometry(Part.Circle(V(-43.2, 68.5, 0), V(0, 0, 1), 2), False)
sketch11.addConstraint(Sketcher.Constraint("Equal", 0, 1))
sketch11.addConstraint(Sketcher.Constraint("Symmetric", 0, 3, 1, 3, -2))
sketch11.addConstraint(Sketcher.Constraint("Diameter", 0, 4.0))
sketch11.addConstraint(Sketcher.Constraint("DistanceX", -1, 1, 0, 3, 43.2))
sketch11.addConstraint(Sketcher.Constraint("DistanceY", -1, 1, 0, 3, 68.5))
pocket10 = doc.addObject("PartDesign::Pocket", "Pocket009")
body.addObject(pocket10)
pocket10.Profile = sketch11
pocket10.Length = 10
pocket10.Reversed = True

# Sketch on XY plane
sketch12 = doc.addObject("Sketcher::SketchObject", "Sketch011")
body.addObject(sketch12)
sketch12.AttachmentSupport = (doc.XY_Plane, [""])
sketch12.MapMode = "FlatFace"
sketch12.addGeometry(Part.Circle(V(42.8, -52.5, 0), V(0, 0, 1), 2), False)
sketch12.addGeometry(Part.Circle(V(-42.8, -52.5, 0), V(0, 0, 1), 2), False)
sketch12.addConstraint(Sketcher.Constraint("Equal", 0, 1))
sketch12.addConstraint(Sketcher.Constraint("Symmetric", 0, 3, 1, 3, -2))
sketch12.addConstraint(Sketcher.Constraint("Diameter", 0, 4.0))
sketch12.addConstraint(Sketcher.Constraint("DistanceX", -1, 1, 0, 3, 42.8))
sketch12.addConstraint(Sketcher.Constraint("DistanceY", 0, 3, -1, 1, 52.5))
pocket11 = doc.addObject("PartDesign::Pocket", "Pocket010")
body.addObject(pocket11)
pocket11.Profile = sketch12
pocket11.Length = 5
pocket11.Reversed = True

# Sketch on XY plane
sketch13 = doc.addObject("Sketcher::SketchObject", "Sketch012")
body.addObject(sketch13)
sketch13.AttachmentSupport = (doc.XY_Plane, [""])
sketch13.MapMode = "FlatFace"
sketch13.addGeometry(Part.Circle(V(112, -51, 0), V(0, 0, 1), 2), False)
sketch13.addGeometry(Part.Circle(V(65, -51, 0), V(0, 0, 1), 2), False)
sketch13.addGeometry(Part.Circle(V(-65, -51, 0), V(0, 0, 1), 2), False)
sketch13.addGeometry(Part.Circle(V(-112, -51, 0), V(0, 0, 1), 2), False)
sketch13.addConstraint(Sketcher.Constraint("Equal", 0, 1))
sketch13.addConstraint(Sketcher.Constraint("Equal", 1, 2))
sketch13.addConstraint(Sketcher.Constraint("Equal", 2, 3))
sketch13.addConstraint(Sketcher.Constraint("Symmetric", 1, 3, 2, 3, -2))
sketch13.addConstraint(Sketcher.Constraint("Symmetric", 0, 3, 3, 3, -2))
sketch13.addConstraint(Sketcher.Constraint("Horizontal", 0, 3, 1, 3))
sketch13.addConstraint(Sketcher.Constraint("Diameter", 0, 4.0))
sketch13.addConstraint(Sketcher.Constraint("DistanceX", -1, 1, 0, 3, 112.0))
sketch13.addConstraint(Sketcher.Constraint("DistanceY", 0, 3, -1, 1, 51.0))
sketch13.addConstraint(Sketcher.Constraint("DistanceX", -1, 1, 1, 3, 65.0))
pocket12 = doc.addObject("PartDesign::Pocket", "Pocket011")
body.addObject(pocket12)
pocket12.Profile = sketch13
pocket12.Length = 10
pocket12.Reversed = True

doc.recompute()
